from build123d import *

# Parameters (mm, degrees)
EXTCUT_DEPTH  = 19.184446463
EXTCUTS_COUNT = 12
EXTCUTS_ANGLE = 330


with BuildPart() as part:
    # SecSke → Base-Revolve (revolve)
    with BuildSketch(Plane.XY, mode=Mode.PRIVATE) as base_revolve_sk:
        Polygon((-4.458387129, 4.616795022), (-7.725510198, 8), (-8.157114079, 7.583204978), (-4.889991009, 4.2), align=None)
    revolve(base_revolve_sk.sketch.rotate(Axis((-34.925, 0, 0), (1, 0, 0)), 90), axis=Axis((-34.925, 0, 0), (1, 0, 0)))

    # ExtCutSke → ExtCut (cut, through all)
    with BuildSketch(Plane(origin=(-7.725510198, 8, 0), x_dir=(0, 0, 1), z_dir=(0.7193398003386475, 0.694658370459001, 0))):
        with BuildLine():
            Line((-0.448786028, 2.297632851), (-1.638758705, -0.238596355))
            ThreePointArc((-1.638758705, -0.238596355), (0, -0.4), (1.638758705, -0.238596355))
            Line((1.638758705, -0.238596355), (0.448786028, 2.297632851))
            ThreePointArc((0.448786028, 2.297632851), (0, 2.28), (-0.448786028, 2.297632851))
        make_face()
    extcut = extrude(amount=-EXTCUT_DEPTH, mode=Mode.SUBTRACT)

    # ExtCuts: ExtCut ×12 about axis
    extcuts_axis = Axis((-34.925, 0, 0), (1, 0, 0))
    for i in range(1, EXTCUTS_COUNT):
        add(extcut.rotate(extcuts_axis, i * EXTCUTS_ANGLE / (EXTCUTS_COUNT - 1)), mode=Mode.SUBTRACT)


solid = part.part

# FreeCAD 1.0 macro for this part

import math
import FreeCAD as App
import Part
import Sketcher
from FreeCAD import Vector
Q = App.Units.Quantity

doc = App.newDocument("Part")
body = doc.addObject("PartDesign::Body", "Body")

# Sketch on XY plane
sketch1 = body.newObject("Sketcher::SketchObject", "Sketch")
sketch1.AttachmentSupport = (doc.getObject("XY_Plane"), [""])
sketch1.MapMode = "FlatFace"
sketch1.addGeometry([
    Part.LineSegment(Vector(-4.458387, 4.616795, 0), Vector(-7.72551, 8, 0)),
    Part.LineSegment(Vector(-7.72551, 8, 0), Vector(-8.157114, 7.583205, 0)),
    Part.LineSegment(Vector(-8.157114, 7.583205, 0), Vector(-4.889991, 4.2, 0)),
    Part.LineSegment(Vector(-4.889991, 4.2, 0), Vector(-4.458387, 4.616795, 0)),
], False)
sketch1.addConstraint([
    Sketcher.Constraint("Coincident", 0, 2, 1, 1),
    Sketcher.Constraint("Coincident", 1, 2, 2, 1),
    Sketcher.Constraint("Coincident", 2, 2, 3, 1),
    Sketcher.Constraint("Coincident", 3, 2, 0, 1),
    Sketcher.Constraint("Perpendicular", 0, 1),
    Sketcher.Constraint("Perpendicular", 1, 2),
    Sketcher.Constraint("Perpendicular", 2, 3),
    Sketcher.Constraint("Angle", 0, Q("134 deg")),
    Sketcher.Constraint("DistanceY", -1, 1, 0, 2, 8.0),
    Sketcher.Constraint("Distance", 1, 0.6),
    Sketcher.Constraint("DistanceY", -1, 1, 2, 2, 4.2),
    Sketcher.Constraint("DistanceX", 0, 2, -1, 1, 7.72551),
])
revolution = body.newObject("PartDesign::Revolution", "Revolution")
revolution.Profile = sketch1
revolution.ReferenceAxis = (sketch1, ["H_Axis"])
revolution.Angle = 360

# Sketch on an angled plane
sketch2 = body.newObject("Sketcher::SketchObject", "Sketch001")
sketch2.Placement = App.Placement(Vector(-7.72551, 8, 0), App.Rotation(Vector(0, 0, 1), Vector(0.69465837, -0.7193398, 0), Vector(0.7193398, 0.69465837, 0), "ZXY"))
sketch2.addGeometry([
    Part.LineSegment(Vector(-0.448786, 2.297633, 0), Vector(-1.638759, -0.238596, 0)),
    Part.ArcOfCircle(Part.Circle(Vector(0, 8, 0), Vector(0, 0, 1), 8.4), math.radians(-101.25), math.radians(-78.75)),
    Part.LineSegment(Vector(1.638759, -0.238596, 0), Vector(0.448786, 2.297633, 0)),
    Part.ArcOfCircle(Part.Circle(Vector(0, 8, 0), Vector(0, 0, 1), 5.72), math.radians(-94.5), math.radians(-85.5)),
], False)
sketch2.addConstraint([
    Sketcher.Constraint("Coincident", 0, 2, 1, 1),
    Sketcher.Constraint("Coincident", 1, 2, 2, 1),
    Sketcher.Constraint("Coincident", 2, 2, 3, 2),
    Sketcher.Constraint("Coincident", 3, 1, 0, 1),
    Sketcher.Constraint("Coincident", 3, 3, 1, 3),
    Sketcher.Constraint("Symmetric", 0, 2, 1, 2, -2),
    Sketcher.Constraint("Horizontal", 2, 2, 3, 1),
    Sketcher.Constraint("Radius", 1, 8.4),
    Sketcher.Constraint("Radius", 3, 5.72),
    Sketcher.Constraint("DistanceY", -1, 1, 1, 3, 8.0),
    Sketcher.Constraint("DistanceX", 0, 2, -1, 1, 1.638759),
    Sketcher.Constraint("DistanceY", 1, 2, 2, 2, 2.536229),
])
pocket1 = body.newObject("PartDesign::Pocket", "Pocket")
pocket1.Profile = sketch2
pocket1.Type = "ThroughAll"
doc.recompute()

polarpattern = body.newObject("PartDesign::PolarPattern", "PolarPattern")
polarpattern.Originals = [pocket1]
polarpattern.Axis = (doc.getObject("X_Axis"), [""])
polarpattern.Angle = 360
polarpattern.Occurrences = 12
body.Tip = polarpattern

doc.recompute()
